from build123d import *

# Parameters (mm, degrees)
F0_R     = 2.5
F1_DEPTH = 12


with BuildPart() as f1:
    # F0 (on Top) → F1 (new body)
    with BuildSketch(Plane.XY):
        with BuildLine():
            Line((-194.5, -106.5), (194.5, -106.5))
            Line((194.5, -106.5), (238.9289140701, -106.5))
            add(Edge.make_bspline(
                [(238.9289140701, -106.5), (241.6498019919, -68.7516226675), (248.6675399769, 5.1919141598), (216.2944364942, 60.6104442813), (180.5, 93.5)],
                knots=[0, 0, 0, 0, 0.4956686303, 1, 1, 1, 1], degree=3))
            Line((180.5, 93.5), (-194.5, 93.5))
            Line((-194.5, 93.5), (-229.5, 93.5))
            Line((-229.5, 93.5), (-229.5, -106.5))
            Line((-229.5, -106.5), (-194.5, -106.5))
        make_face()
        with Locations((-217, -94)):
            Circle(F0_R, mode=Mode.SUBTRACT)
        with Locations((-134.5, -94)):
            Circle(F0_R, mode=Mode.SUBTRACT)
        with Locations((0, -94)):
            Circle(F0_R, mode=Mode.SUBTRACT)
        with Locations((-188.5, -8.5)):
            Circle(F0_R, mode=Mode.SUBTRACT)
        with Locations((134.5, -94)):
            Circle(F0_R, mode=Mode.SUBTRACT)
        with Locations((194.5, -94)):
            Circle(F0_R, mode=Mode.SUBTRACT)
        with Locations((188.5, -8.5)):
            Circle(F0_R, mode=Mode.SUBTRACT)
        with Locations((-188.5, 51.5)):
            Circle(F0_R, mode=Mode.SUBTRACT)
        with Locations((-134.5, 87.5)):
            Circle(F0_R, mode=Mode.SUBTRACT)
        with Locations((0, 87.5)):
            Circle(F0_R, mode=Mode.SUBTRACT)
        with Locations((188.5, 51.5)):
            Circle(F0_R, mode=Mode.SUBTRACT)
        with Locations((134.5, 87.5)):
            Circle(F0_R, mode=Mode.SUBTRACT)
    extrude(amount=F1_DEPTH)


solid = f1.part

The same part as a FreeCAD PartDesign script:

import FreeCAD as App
import Part
import Sketcher

V = App.Vector
Q = App.Units.Quantity

doc = App.newDocument("Part")
body = doc.addObject("PartDesign::Body", "Body")

# Sketch on XY plane
sketch1 = doc.addObject("Sketcher::SketchObject", "Sketch")
body.addObject(sketch1)
sketch1.AttachmentSupport = (doc.XY_Plane, [""])
sketch1.MapMode = "FlatFace"
sketch1.addGeometry(Part.BSplineCurve([V(238.928914, -106.5, 0), V(241.649802, -68.751623, 0), V(248.66754, 5.191914, 0), V(216.294436, 60.610444, 0), V(180.5, 93.5, 0)], [4, 1, 4], [0, 0.49566863, 1], False, 3, [1, 1, 1, 1, 1], False), False)
sketch1.addGeometry(Part.LineSegment(V(180.5, 93.5, 0), V(-229.5, 93.5, 0)), False)
sketch1.addGeometry(Part.LineSegment(V(-229.5, 93.5, 0), V(-229.5, -106.5, 0)), False)
sketch1.addGeometry(Part.LineSegment(V(-229.5, -106.5, 0), V(238.928914, -106.5, 0)), False)
sketch1.addGeometry(Part.Circle(V(-217, -94, 0), V(0, 0, 1), 2.5), False)
sketch1.addGeometry(Part.Circle(V(-134.5, -94, 0), V(0, 0, 1), 2.5), False)
sketch1.addGeometry(Part.Circle(V(-188.5, -8.5, 0), V(0, 0, 1), 2.5), False)
sketch1.addGeometry(Part.Circle(V(0, -94, 0), V(0, 0, 1), 2.5), False)
sketch1.addGeometry(Part.Circle(V(134.5, -94, 0), V(0, 0, 1), 2.5), False)
sketch1.addGeometry(Part.Circle(V(194.5, -94, 0), V(0, 0, 1), 2.5), False)
sketch1.addGeometry(Part.Circle(V(188.5, -8.5, 0), V(0, 0, 1), 2.5), False)
sketch1.addGeometry(Part.Circle(V(-188.5, 51.5, 0), V(0, 0, 1), 2.5), False)
sketch1.addGeometry(Part.Circle(V(-134.5, 87.5, 0), V(0, 0, 1), 2.5), False)
sketch1.addGeometry(Part.Circle(V(0, 87.5, 0), V(0, 0, 1), 2.5), False)
sketch1.addGeometry(Part.Circle(V(188.5, 51.5, 0), V(0, 0, 1), 2.5), False)
sketch1.addGeometry(Part.Circle(V(134.5, 87.5, 0), V(0, 0, 1), 2.5), False)
sketch1.addConstraint(Sketcher.Constraint("Block", 0))
sketch1.addConstraint(Sketcher.Constraint("Coincident", 0, 2, 1, 1))
sketch1.addConstraint(Sketcher.Constraint("Coincident", 1, 2, 2, 1))
sketch1.addConstraint(Sketcher.Constraint("Coincident", 2, 2, 3, 1))
sketch1.addConstraint(Sketcher.Constraint("Coincident", 3, 2, 0, 1))
sketch1.addConstraint(Sketcher.Constraint("Horizontal", 1))
sketch1.addConstraint(Sketcher.Constraint("Vertical", 2))
sketch1.addConstraint(Sketcher.Constraint("Horizontal", 3))
sketch1.addConstraint(Sketcher.Constraint("Equal", 4, 5))
sketch1.addConstraint(Sketcher.Constraint("Equal", 5, 6))
sketch1.addConstraint(Sketcher.Constraint("Equal", 6, 7))
sketch1.addConstraint(Sketcher.Constraint("Equal", 7, 8))
sketch1.addConstraint(Sketcher.Constraint("Equal", 8, 9))
sketch1.addConstraint(Sketcher.Constraint("Equal", 9, 10))
sketch1.addConstraint(Sketcher.Constraint("Equal", 10, 11))
sketch1.addConstraint(Sketcher.Constraint("Equal", 11, 12))
sketch1.addConstraint(Sketcher.Constraint("Equal", 12, 13))
sketch1.addConstraint(Sketcher.Constraint("Equal", 13, 14))
sketch1.addConstraint(Sketcher.Constraint("Equal", 14, 15))
sketch1.addConstraint(Sketcher.Constraint("Symmetric", 5, 3, 8, 3, -2))
sketch1.addConstraint(Sketcher.Constraint("Symmetric", 6, 3, 10, 3, -2))
sketch1.addConstraint(Sketcher.Constraint("Symmetric", 11, 3, 14, 3, -2))
sketch1.addConstraint(Sketcher.Constraint("Symmetric", 12, 3, 15, 3, -2))
sketch1.addConstraint(Sketcher.Constraint("PointOnObject", 7, 3, -2))
sketch1.addConstraint(Sketcher.Constraint("PointOnObject", 13, 3, -2))
sketch1.addConstraint(Sketcher.Constraint("Horizontal", 4, 3, 5, 3))
sketch1.addConstraint(Sketcher.Constraint("Horizontal", 5, 3, 7, 3))
sketch1.addConstraint(Sketcher.Constraint("Horizontal", 8, 3, 9, 3))
sketch1.addConstraint(Sketcher.Constraint("Horizontal", 12, 3, 13, 3))
sketch1.addConstraint(Sketcher.Constraint("Vertical", 6, 3, 11, 3))
sketch1.addConstraint(Sketcher.Constraint("Vertical", 5, 3, 12, 3))
sketch1.addConstraint(Sketcher.Constraint("Diameter", 4, Q("5 mm")))
sketch1.addConstraint(Sketcher.Constraint("DistanceX", 1, 2, 1, 1, Q("410 mm")))
sketch1.addConstraint(Sketcher.Constraint("DistanceX", 4, 3, -1, 1, Q("217 mm")))
sketch1.addConstraint(Sketcher.Constraint("DistanceY", 4, 3, -1, 1, Q("94 mm")))
sketch1.addConstraint(Sketcher.Constraint("DistanceX", 6, 3, 5, 3, Q("54 mm")))
sketch1.addConstraint(Sketcher.Constraint("DistanceX", 5, 3, 8, 3, Q("269 mm")))
sketch1.addConstraint(Sketcher.Constraint("DistanceX", 8, 3, 9, 3, Q("60 mm")))
sketch1.addConstraint(Sketcher.Constraint("DistanceY", 6, 3, 11, 3, Q("60 mm")))
sketch1.addConstraint(Sketcher.Constraint("DistanceY", 11, 3, 12, 3, Q("36 mm")))
sketch1.addConstraint(Sketcher.Constraint("DistanceY", 11, 3, 1, 2, Q("42 mm")))
pad1 = doc.addObject("PartDesign::Pad", "Pad")
body.addObject(pad1)
pad1.Profile = sketch1
pad1.Length = 12

doc.recompute()
